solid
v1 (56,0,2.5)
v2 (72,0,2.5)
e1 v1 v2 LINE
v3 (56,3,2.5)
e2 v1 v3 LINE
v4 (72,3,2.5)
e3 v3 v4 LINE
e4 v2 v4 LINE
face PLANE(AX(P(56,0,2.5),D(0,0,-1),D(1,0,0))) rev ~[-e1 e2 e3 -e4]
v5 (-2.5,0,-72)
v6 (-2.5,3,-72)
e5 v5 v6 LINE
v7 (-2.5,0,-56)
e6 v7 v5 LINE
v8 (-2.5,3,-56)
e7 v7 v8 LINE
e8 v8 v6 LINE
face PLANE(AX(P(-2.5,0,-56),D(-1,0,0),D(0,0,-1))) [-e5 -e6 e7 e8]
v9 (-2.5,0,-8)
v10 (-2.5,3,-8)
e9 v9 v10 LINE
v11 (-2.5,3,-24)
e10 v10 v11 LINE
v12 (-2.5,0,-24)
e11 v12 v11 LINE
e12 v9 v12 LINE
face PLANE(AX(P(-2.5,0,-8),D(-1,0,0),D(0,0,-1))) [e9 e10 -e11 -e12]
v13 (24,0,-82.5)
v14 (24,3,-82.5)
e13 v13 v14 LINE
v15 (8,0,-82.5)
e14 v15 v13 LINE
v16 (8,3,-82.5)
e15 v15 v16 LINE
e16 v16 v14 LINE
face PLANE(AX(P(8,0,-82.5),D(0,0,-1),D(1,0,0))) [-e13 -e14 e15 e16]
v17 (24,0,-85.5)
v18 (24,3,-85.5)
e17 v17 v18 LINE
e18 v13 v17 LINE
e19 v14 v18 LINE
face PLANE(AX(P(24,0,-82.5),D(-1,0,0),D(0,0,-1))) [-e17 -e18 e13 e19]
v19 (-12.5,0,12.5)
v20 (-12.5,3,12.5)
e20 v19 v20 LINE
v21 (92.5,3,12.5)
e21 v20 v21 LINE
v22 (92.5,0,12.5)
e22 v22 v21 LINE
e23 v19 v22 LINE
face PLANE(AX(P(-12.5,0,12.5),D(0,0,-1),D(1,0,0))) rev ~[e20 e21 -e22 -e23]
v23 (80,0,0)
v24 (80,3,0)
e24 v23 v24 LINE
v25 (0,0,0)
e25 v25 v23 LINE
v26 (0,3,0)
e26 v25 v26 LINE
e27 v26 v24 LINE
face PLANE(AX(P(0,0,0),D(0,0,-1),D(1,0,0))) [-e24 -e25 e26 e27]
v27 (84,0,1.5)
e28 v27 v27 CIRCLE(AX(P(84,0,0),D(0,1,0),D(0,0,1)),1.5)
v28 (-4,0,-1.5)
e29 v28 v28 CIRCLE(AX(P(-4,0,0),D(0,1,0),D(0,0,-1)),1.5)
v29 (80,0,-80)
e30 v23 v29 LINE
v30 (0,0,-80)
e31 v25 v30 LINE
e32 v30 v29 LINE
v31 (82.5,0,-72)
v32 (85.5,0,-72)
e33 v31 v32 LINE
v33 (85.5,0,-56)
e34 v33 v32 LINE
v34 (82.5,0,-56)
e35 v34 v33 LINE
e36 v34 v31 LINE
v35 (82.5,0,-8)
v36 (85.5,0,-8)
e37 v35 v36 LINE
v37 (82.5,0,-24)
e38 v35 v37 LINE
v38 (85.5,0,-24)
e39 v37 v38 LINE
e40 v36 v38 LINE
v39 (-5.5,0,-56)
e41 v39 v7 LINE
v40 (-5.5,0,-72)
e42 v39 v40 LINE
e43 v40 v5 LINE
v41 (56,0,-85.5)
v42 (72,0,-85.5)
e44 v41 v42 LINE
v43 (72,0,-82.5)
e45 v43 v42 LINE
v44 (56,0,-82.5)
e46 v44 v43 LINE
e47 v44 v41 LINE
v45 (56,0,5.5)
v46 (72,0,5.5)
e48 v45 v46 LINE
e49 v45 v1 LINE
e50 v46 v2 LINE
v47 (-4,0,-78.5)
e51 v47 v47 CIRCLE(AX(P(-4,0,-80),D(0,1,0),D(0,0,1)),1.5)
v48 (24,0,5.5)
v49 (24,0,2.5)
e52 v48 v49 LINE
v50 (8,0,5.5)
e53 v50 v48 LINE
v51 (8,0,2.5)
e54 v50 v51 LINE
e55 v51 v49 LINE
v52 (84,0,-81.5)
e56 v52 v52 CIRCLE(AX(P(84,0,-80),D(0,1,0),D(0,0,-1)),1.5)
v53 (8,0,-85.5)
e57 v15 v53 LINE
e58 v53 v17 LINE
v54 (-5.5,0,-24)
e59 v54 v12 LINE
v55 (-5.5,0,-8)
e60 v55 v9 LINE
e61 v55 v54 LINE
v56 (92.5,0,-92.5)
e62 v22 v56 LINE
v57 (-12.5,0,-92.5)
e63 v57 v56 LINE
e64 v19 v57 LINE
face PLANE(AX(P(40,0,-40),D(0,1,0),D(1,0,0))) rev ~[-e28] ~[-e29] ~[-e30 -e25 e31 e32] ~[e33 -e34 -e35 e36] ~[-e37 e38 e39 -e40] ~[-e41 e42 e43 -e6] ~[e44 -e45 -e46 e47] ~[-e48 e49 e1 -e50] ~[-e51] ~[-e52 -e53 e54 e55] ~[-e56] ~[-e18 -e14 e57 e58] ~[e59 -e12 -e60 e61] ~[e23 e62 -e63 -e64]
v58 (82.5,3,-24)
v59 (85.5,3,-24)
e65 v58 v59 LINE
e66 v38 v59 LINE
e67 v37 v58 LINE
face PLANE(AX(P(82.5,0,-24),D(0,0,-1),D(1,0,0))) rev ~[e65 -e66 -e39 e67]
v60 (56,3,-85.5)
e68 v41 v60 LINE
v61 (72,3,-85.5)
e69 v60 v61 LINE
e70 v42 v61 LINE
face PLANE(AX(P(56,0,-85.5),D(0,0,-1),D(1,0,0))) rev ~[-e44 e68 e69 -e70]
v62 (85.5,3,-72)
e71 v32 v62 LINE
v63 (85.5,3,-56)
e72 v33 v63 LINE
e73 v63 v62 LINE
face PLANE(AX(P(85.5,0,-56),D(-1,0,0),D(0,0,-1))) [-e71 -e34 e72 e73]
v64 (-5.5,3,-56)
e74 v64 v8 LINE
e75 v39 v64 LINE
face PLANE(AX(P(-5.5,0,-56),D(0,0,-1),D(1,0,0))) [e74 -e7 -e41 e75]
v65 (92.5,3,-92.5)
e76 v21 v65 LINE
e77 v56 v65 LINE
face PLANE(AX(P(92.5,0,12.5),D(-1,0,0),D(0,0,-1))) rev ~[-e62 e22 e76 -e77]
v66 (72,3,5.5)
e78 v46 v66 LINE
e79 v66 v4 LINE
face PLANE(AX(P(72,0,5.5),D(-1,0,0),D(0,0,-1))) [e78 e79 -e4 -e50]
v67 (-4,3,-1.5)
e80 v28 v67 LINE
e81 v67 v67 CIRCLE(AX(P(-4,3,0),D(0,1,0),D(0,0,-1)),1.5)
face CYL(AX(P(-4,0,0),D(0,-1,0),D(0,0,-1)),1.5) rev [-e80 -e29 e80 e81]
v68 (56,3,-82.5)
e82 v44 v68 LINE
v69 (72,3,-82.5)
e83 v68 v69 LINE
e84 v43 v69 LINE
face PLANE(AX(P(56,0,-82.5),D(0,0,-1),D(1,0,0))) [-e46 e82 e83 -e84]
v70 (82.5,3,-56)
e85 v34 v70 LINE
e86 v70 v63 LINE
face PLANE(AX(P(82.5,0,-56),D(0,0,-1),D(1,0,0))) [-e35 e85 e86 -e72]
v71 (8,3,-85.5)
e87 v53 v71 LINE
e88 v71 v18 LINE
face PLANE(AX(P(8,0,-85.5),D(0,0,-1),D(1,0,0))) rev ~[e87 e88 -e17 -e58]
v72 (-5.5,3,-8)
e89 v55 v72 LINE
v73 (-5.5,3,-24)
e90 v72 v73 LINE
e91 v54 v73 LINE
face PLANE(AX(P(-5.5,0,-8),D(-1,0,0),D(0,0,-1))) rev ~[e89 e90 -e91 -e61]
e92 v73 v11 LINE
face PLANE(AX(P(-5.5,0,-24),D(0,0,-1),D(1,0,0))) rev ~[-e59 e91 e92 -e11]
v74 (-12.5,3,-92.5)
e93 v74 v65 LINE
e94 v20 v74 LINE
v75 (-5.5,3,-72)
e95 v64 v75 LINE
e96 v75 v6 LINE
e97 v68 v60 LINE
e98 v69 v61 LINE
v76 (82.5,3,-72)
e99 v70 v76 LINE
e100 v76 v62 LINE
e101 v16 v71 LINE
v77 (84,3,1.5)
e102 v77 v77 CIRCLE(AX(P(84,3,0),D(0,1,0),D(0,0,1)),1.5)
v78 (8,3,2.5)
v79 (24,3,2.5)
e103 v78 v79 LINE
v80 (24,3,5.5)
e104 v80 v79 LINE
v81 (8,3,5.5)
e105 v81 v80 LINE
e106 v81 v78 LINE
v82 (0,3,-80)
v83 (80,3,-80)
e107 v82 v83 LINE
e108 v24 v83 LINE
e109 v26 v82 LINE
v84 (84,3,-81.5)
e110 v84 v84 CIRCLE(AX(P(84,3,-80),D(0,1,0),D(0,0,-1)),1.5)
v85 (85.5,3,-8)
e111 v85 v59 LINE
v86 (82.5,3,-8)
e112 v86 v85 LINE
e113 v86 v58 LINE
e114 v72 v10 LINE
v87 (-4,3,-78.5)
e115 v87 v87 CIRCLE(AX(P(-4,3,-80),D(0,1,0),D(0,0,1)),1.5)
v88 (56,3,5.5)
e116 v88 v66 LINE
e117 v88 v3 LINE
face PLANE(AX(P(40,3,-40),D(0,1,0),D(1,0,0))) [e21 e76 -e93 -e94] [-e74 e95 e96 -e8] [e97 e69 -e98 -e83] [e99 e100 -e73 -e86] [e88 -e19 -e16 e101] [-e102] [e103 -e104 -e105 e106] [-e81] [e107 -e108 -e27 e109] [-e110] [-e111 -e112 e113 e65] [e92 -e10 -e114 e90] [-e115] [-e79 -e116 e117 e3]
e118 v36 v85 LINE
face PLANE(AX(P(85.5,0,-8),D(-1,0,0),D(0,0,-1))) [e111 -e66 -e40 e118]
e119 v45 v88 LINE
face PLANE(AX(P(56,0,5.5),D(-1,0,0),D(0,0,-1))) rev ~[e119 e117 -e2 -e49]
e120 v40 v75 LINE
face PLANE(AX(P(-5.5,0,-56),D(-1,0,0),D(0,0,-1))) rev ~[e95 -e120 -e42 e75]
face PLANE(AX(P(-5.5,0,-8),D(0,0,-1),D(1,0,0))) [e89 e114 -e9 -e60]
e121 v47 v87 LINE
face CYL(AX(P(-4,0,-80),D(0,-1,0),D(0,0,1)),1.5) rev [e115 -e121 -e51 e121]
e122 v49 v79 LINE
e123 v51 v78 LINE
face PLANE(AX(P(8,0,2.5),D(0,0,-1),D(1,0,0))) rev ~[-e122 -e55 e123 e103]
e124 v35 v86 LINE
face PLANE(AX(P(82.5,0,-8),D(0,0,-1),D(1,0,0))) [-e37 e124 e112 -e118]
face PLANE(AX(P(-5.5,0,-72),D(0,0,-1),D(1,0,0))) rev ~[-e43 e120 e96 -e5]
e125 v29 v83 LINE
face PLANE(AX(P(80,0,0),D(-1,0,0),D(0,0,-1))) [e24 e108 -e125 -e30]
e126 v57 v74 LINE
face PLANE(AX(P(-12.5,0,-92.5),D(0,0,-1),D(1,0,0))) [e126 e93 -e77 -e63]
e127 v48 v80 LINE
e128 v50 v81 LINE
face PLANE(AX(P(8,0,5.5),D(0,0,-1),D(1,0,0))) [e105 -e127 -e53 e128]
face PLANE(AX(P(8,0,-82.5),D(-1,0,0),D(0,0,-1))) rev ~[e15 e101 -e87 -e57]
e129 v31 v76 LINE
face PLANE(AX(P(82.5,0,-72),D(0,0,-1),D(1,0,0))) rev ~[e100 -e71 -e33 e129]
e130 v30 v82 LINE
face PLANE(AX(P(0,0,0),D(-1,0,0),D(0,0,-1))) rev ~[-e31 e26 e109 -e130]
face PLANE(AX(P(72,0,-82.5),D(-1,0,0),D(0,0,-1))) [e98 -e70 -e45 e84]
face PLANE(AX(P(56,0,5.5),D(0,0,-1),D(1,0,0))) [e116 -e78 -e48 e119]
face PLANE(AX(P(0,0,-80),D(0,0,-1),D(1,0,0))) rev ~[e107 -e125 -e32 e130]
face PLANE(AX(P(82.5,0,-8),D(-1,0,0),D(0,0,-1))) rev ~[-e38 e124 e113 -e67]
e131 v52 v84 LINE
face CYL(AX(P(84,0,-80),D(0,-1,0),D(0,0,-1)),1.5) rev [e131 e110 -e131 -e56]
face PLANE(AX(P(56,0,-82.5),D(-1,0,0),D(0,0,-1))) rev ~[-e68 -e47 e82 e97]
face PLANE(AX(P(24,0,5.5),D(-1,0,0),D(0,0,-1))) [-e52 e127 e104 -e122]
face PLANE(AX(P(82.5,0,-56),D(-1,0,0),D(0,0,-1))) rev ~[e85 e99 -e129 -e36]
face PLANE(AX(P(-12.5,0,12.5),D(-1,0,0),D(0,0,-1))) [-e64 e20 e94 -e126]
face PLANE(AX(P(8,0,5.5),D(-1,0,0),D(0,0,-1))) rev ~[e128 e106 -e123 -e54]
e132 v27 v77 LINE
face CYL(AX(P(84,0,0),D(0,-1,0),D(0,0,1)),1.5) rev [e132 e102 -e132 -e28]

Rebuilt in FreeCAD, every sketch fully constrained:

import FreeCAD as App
import Part
import Sketcher


def add_polygon(sketch, points):
    """Adds a closed chain of lines whose ends are joined by coincident constraints."""
    first, n = sketch.GeometryCount, len(points)
    for a, b in zip(points, points[1:] + points[:1]):
        sketch.addGeometry(Part.LineSegment(App.Vector(*a, 0), App.Vector(*b, 0)), False)
    for i in range(n):
        sketch.addConstraint(Sketcher.Constraint("Coincident", first + i, 2, first + (i + 1) % n, 1))

doc = App.newDocument("Part")
params = doc.addObject("Spreadsheet::Sheet", "Params")
for row, (alias, value) in enumerate([
    ("sketch1_diameter", "3 mm"),
    ("sketch1_width", "105 mm"),
    ("sketch1_width2", "16 mm"),
    ("sketch1_width3", "3 mm"),
    ("sketch1_width4", "80 mm"),
    ("pad1_length", "3 mm"),
], start=1):
    params.set(f"A{row}", alias)
    params.set(f"B{row}", "=" + value)
    params.setAlias(f"B{row}", alias)

body = doc.addObject("PartDesign::Body", "Body")

sketch1 = doc.addObject("Sketcher::SketchObject", "Sketch")
body.addObject(sketch1)
sketch1.AttachmentSupport = (doc.XZ_Plane, [""])
sketch1.MapMode = "FlatFace"
add_polygon(sketch1, [(-12.5, -92.5), (-12.5, 12.5), (92.5, 12.5), (92.5, -92.5)])
sketch1.addGeometry(Part.Circle(App.Vector(-4, 0, 0), App.Vector(0, 0, 1), 1.5), False)
add_polygon(sketch1, [(24, 5.5), (8, 5.5), (8, 2.5), (24, 2.5)])
add_polygon(sketch1, [(-2.5, -8), (-5.5, -8), (-5.5, -24), (-2.5, -24)])
add_polygon(sketch1, [(72, 5.5), (56, 5.5), (56, 2.5), (72, 2.5)])
sketch1.addGeometry(Part.Circle(App.Vector(84, 0, 0), App.Vector(0, 0, 1), 1.5), False)
add_polygon(sketch1, [(85.5, -8), (82.5, -8), (82.5, -24), (85.5, -24)])
add_polygon(sketch1, [(-2.5, -56), (-5.5, -56), (-5.5, -72), (-2.5, -72)])
sketch1.addGeometry(Part.Circle(App.Vector(-4, -80, 0), App.Vector(0, 0, 1), 1.5), False)
add_polygon(sketch1, [(24, -82.5), (8, -82.5), (8, -85.5), (24, -85.5)])
add_polygon(sketch1, [(80, 0), (0, 0), (0, -80), (80, -80)])
add_polygon(sketch1, [(85.5, -56), (82.5, -56), (82.5, -72), (85.5, -72)])
add_polygon(sketch1, [(72, -82.5), (56, -82.5), (56, -85.5), (72, -85.5)])
sketch1.addGeometry(Part.Circle(App.Vector(84, -80, 0), App.Vector(0, 0, 1), 1.5), False)
sketch1.addConstraint(Sketcher.Constraint("Vertical", 0))
sketch1.addConstraint(Sketcher.Constraint("Horizontal", 1))
sketch1.addConstraint(Sketcher.Constraint("Vertical", 2))
sketch1.addConstraint(Sketcher.Constraint("Horizontal", 3))
sketch1.addConstraint(Sketcher.Constraint("Horizontal", 5))
sketch1.addConstraint(Sketcher.Constraint("Vertical", 6))
sketch1.addConstraint(Sketcher.Constraint("Horizontal", 7))
sketch1.addConstraint(Sketcher.Constraint("Vertical", 8))
sketch1.addConstraint(Sketcher.Constraint("Horizontal", 9))
sketch1.addConstraint(Sketcher.Constraint("Vertical", 10))
sketch1.addConstraint(Sketcher.Constraint("Horizontal", 11))
sketch1.addConstraint(Sketcher.Constraint("Vertical", 12))
sketch1.addConstraint(Sketcher.Constraint("Horizontal", 13))
sketch1.addConstraint(Sketcher.Constraint("Vertical", 14))
sketch1.addConstraint(Sketcher.Constraint("Horizontal", 15))
sketch1.addConstraint(Sketcher.Constraint("Vertical", 16))
sketch1.addConstraint(Sketcher.Constraint("Horizontal", 18))
sketch1.addConstraint(Sketcher.Constraint("Vertical", 19))
sketch1.addConstraint(Sketcher.Constraint("Horizontal", 20))
sketch1.addConstraint(Sketcher.Constraint("Vertical", 21))
sketch1.addConstraint(Sketcher.Constraint("Horizontal", 22))
sketch1.addConstraint(Sketcher.Constraint("Vertical", 23))
sketch1.addConstraint(Sketcher.Constraint("Horizontal", 24))
sketch1.addConstraint(Sketcher.Constraint("Vertical", 25))
sketch1.addConstraint(Sketcher.Constraint("Horizontal", 27))
sketch1.addConstraint(Sketcher.Constraint("Vertical", 28))
sketch1.addConstraint(Sketcher.Constraint("Horizontal", 29))
sketch1.addConstraint(Sketcher.Constraint("Vertical", 30))
sketch1.addConstraint(Sketcher.Constraint("Horizontal", 31))
sketch1.addConstraint(Sketcher.Constraint("Vertical", 32))
sketch1.addConstraint(Sketcher.Constraint("Horizontal", 33))
sketch1.addConstraint(Sketcher.Constraint("Vertical", 34))
sketch1.addConstraint(Sketcher.Constraint("Horizontal", 35))
sketch1.addConstraint(Sketcher.Constraint("Vertical", 36))
sketch1.addConstraint(Sketcher.Constraint("Horizontal", 37))
sketch1.addConstraint(Sketcher.Constraint("Vertical", 38))
sketch1.addConstraint(Sketcher.Constraint("Horizontal", 39))
sketch1.addConstraint(Sketcher.Constraint("Vertical", 40))
sketch1.addConstraint(Sketcher.Constraint("Horizontal", 41))
sketch1.addConstraint(Sketcher.Constraint("Vertical", 42))
sketch1.addConstraint(Sketcher.Constraint("Coincident", 31, 2, -1, 1))
sketch1.addConstraint(Sketcher.Constraint("Equal", 4, 17))
sketch1.addConstraint(Sketcher.Constraint("Equal", 17, 26))
sketch1.addConstraint(Sketcher.Constraint("Equal", 26, 43))
sketch1.addConstraint(Sketcher.Constraint("PointOnObject", 4, 3, -1))
sketch1.addConstraint(Sketcher.Constraint("PointOnObject", 17, 3, -1))
sketch1.addConstraint(Sketcher.Constraint("Horizontal", 26, 3, 43, 3))
sketch1.addConstraint(Sketcher.Constraint("Horizontal", 8, 2, 13, 2))
sketch1.addConstraint(Sketcher.Constraint("Horizontal", 7, 2, 14, 2))
sketch1.addConstraint(Sketcher.Constraint("Horizontal", 12, 2, 18, 2))
sketch1.addConstraint(Sketcher.Constraint("Horizontal", 11, 2, 19, 2))
sketch1.addConstraint(Sketcher.Constraint("Horizontal", 43, 3, 32, 2))
sketch1.addConstraint(Sketcher.Constraint("Horizontal", 25, 2, 35, 2))
sketch1.addConstraint(Sketcher.Constraint("Horizontal", 24, 2, 36, 2))
sketch1.addConstraint(Sketcher.Constraint("Horizontal", 30, 2, 39, 2))
sketch1.addConstraint(Sketcher.Constraint("Horizontal", 29, 2, 40, 2))
sketch1.addConstraint(Sketcher.Constraint("Vertical", 4, 3, 26, 3))
sketch1.addConstraint(Sketcher.Constraint("Vertical", 17, 3, 43, 3))
sketch1.addConstraint(Sketcher.Constraint("Vertical", 10, 2, 22, 2))
sketch1.addConstraint(Sketcher.Constraint("Vertical", 12, 2, 24, 2))
sketch1.addConstraint(Sketcher.Constraint("Vertical", 6, 2, 27, 2))
sketch1.addConstraint(Sketcher.Constraint("Vertical", 8, 2, 29, 2))
sketch1.addConstraint(Sketcher.Constraint("Vertical", 19, 2, 35, 2))
sketch1.addConstraint(Sketcher.Constraint("Vertical", 21, 2, 37, 2))
sketch1.addConstraint(Sketcher.Constraint("Vertical", 14, 2, 39, 2))
sketch1.addConstraint(Sketcher.Constraint("Vertical", 16, 2, 41, 2))
sketch1.addConstraint(Sketcher.Constraint("Equal", 7, 13))
sketch1.addConstraint(Sketcher.Constraint("Equal", 11, 18))
sketch1.addConstraint(Sketcher.Constraint("Equal", 3, 0))
sketch1.addConstraint(Sketcher.Constraint("Equal", 37, 6))
sketch1.addConstraint(Sketcher.Constraint("Equal", 41, 10))
sketch1.addConstraint(Sketcher.Constraint("Equal", 21, 23))
sketch1.addConstraint(Sketcher.Constraint("Equal", 16, 28))
sketch1.addConstraint(Sketcher.Constraint("Equal", 33, 32))
sketch1.addConstraint(Sketcher.Constraint("Diameter", 4, 3.0))
sketch1.addConstraint(Sketcher.Constraint("DistanceX", 1, 1, 1, 2, 105.0))
sketch1.addConstraint(Sketcher.Constraint("DistanceX", 5, 2, 5, 1, 16.0))
sketch1.addConstraint(Sketcher.Constraint("DistanceX", 9, 2, 9, 1, 3.0))
sketch1.addConstraint(Sketcher.Constraint("DistanceX", 31, 2, 31, 1, 80.0))
sketch1.addConstraint(Sketcher.Constraint("DistanceX", 4, 3, -1, 1, 4.0))
sketch1.addConstraint(Sketcher.Constraint("DistanceX", -1, 1, 17, 3, 84.0))
sketch1.addConstraint(Sketcher.Constraint("DistanceX", -1, 1, 5, 2, 8.0))
sketch1.addConstraint(Sketcher.Constraint("DistanceY", 9, 2, -1, 1, 8.0))
sketch1.addConstraint(Sketcher.Constraint("DistanceX", -1, 1, 13, 2, 56.0))
sketch1.addConstraint(Sketcher.Constraint("DistanceY", 22, 2, -1, 1, 56.0))
sketch1.addConstraint(Sketcher.Constraint("DistanceY", 5, 2, 0, 2, 7.0))
sketch1.addConstraint(Sketcher.Constraint("DistanceX", 0, 2, 9, 2, 7.0))
sketch1.addConstraint(Sketcher.Constraint("DistanceX", 18, 2, 1, 2, 10.0))
sketch1.addConstraint(Sketcher.Constraint("DistanceY", 3, 2, 27, 2, 10.0))
sketch1.addConstraint(Sketcher.Constraint("DistanceX", 0, 2, -1, 1, 12.5))
sketch1.addConstraint(Sketcher.Constraint("DistanceY", -1, 1, 0, 2, 12.5))
sketch1.setExpression("Constraints[114]", "Params.sketch1_diameter")
sketch1.setExpression("Constraints[115]", "Params.sketch1_width")
sketch1.setExpression("Constraints[116]", "Params.sketch1_width2")
sketch1.setExpression("Constraints[117]", "Params.sketch1_width3")
sketch1.setExpression("Constraints[118]", "Params.sketch1_width4")
pad1 = doc.addObject("PartDesign::Pad", "Pad")
body.addObject(pad1)
pad1.Profile = sketch1
pad1.setExpression("Length", "Params.pad1_length")
pad1.Reversed = True

doc.recompute()
